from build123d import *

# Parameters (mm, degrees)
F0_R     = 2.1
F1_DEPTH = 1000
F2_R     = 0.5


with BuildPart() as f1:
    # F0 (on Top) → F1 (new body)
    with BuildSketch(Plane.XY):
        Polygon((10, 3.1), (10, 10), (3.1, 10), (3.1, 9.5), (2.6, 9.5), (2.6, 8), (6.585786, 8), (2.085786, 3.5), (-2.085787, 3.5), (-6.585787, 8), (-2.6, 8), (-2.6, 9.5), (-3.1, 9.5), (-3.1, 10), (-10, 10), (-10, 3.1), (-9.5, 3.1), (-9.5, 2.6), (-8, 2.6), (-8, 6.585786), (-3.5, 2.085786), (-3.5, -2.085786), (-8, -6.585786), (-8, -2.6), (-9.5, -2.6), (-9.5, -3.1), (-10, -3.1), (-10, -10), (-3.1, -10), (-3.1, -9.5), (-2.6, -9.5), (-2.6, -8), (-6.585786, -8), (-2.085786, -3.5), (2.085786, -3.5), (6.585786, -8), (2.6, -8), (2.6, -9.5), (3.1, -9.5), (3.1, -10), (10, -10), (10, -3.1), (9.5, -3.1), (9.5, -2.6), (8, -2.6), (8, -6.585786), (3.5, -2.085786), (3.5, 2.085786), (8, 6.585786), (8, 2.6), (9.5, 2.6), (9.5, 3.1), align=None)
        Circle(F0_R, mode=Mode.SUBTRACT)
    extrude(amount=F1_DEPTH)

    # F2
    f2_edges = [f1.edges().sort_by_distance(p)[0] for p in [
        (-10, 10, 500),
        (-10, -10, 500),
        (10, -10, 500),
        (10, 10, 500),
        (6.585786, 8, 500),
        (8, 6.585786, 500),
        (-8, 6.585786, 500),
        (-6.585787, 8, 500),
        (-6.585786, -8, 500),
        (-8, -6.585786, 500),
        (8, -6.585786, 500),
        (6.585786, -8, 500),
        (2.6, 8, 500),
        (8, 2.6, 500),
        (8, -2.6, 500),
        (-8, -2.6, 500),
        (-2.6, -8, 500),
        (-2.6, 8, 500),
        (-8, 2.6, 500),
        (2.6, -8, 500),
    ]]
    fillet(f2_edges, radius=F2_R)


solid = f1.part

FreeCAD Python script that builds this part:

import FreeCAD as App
import Part
import Sketcher


def edges_at(feature, points):
    """Names of the edges that pass closest to the given points."""
    edges = feature.Shape.Edges
    near = lambda p: min(range(len(edges)), key=lambda i: edges[i].distToShape(Part.Vertex(*p))[0])
    return sorted({f"Edge{near(p) + 1}" for p in points})

doc = App.newDocument("Part")
body = doc.addObject("PartDesign::Body", "Body")

sketch1 = body.newObject("Sketcher::SketchObject", "Sketch")
sketch1.AttachmentSupport = (doc.getObject("XY_Plane"), [""])
sketch1.MapMode = "FlatFace"
sketch1.addGeometry(Part.LineSegment(App.Vector(10, 3.1, 0), App.Vector(10, 10, 0)), False)
sketch1.addGeometry(Part.LineSegment(App.Vector(10, 10, 0), App.Vector(3.1, 10, 0)), False)
sketch1.addGeometry(Part.LineSegment(App.Vector(3.1, 10, 0), App.Vector(3.1, 9.5, 0)), False)
sketch1.addGeometry(Part.LineSegment(App.Vector(3.1, 9.5, 0), App.Vector(2.6, 9.5, 0)), False)
sketch1.addGeometry(Part.LineSegment(App.Vector(2.6, 9.5, 0), App.Vector(2.6, 8, 0)), False)
sketch1.addGeometry(Part.LineSegment(App.Vector(2.6, 8, 0), App.Vector(6.6, 8, 0)), False)
sketch1.addGeometry(Part.LineSegment(App.Vector(6.6, 8, 0), App.Vector(2.1, 3.5, 0)), False)
sketch1.addGeometry(Part.LineSegment(App.Vector(2.1, 3.5, 0), App.Vector(-2.1, 3.5, 0)), False)
sketch1.addGeometry(Part.LineSegment(App.Vector(-2.1, 3.5, 0), App.Vector(-6.6, 8, 0)), False)
sketch1.addGeometry(Part.LineSegment(App.Vector(-6.6, 8, 0), App.Vector(-2.6, 8, 0)), False)
sketch1.addGeometry(Part.LineSegment(App.Vector(-2.6, 8, 0), App.Vector(-2.6, 9.5, 0)), False)
sketch1.addGeometry(Part.LineSegment(App.Vector(-2.6, 9.5, 0), App.Vector(-3.1, 9.5, 0)), False)
sketch1.addGeometry(Part.LineSegment(App.Vector(-3.1, 9.5, 0), App.Vector(-3.1, 10, 0)), False)
sketch1.addGeometry(Part.LineSegment(App.Vector(-3.1, 10, 0), App.Vector(-10, 10, 0)), False)
sketch1.addGeometry(Part.LineSegment(App.Vector(-10, 10, 0), App.Vector(-10, 3.1, 0)), False)
sketch1.addGeometry(Part.LineSegment(App.Vector(-10, 3.1, 0), App.Vector(-9.5, 3.1, 0)), False)
sketch1.addGeometry(Part.LineSegment(App.Vector(-9.5, 3.1, 0), App.Vector(-9.5, 2.6, 0)), False)
sketch1.addGeometry(Part.LineSegment(App.Vector(-9.5, 2.6, 0), App.Vector(-8, 2.6, 0)), False)
sketch1.addGeometry(Part.LineSegment(App.Vector(-8, 2.6, 0), App.Vector(-8, 6.6, 0)), False)
sketch1.addGeometry(Part.LineSegment(App.Vector(-8, 6.6, 0), App.Vector(-3.5, 2.1, 0)), False)
sketch1.addGeometry(Part.LineSegment(App.Vector(-3.5, 2.1, 0), App.Vector(-3.5, -2.1, 0)), False)
sketch1.addGeometry(Part.LineSegment(App.Vector(-3.5, -2.1, 0), App.Vector(-8, -6.6, 0)), False)
sketch1.addGeometry(Part.LineSegment(App.Vector(-8, -6.6, 0), App.Vector(-8, -2.6, 0)), False)
sketch1.addGeometry(Part.LineSegment(App.Vector(-8, -2.6, 0), App.Vector(-9.5, -2.6, 0)), False)
sketch1.addGeometry(Part.LineSegment(App.Vector(-9.5, -2.6, 0), App.Vector(-9.5, -3.1, 0)), False)
sketch1.addGeometry(Part.LineSegment(App.Vector(-9.5, -3.1, 0), App.Vector(-10, -3.1, 0)), False)
sketch1.addGeometry(Part.LineSegment(App.Vector(-10, -3.1, 0), App.Vector(-10, -10, 0)), False)
sketch1.addGeometry(Part.LineSegment(App.Vector(-10, -10, 0), App.Vector(-3.1, -10, 0)), False)
sketch1.addGeometry(Part.LineSegment(App.Vector(-3.1, -10, 0), App.Vector(-3.1, -9.5, 0)), False)
sketch1.addGeometry(Part.LineSegment(App.Vector(-3.1, -9.5, 0), App.Vector(-2.6, -9.5, 0)), False)
sketch1.addGeometry(Part.LineSegment(App.Vector(-2.6, -9.5, 0), App.Vector(-2.6, -8, 0)), False)
sketch1.addGeometry(Part.LineSegment(App.Vector(-2.6, -8, 0), App.Vector(-6.6, -8, 0)), False)
sketch1.addGeometry(Part.LineSegment(App.Vector(-6.6, -8, 0), App.Vector(-2.1, -3.5, 0)), False)
sketch1.addGeometry(Part.LineSegment(App.Vector(-2.1, -3.5, 0), App.Vector(2.1, -3.5, 0)), False)
sketch1.addGeometry(Part.LineSegment(App.Vector(2.1, -3.5, 0), App.Vector(6.6, -8, 0)), False)
sketch1.addGeometry(Part.LineSegment(App.Vector(6.6, -8, 0), App.Vector(2.6, -8, 0)), False)
sketch1.addGeometry(Part.LineSegment(App.Vector(2.6, -8, 0), App.Vector(2.6, -9.5, 0)), False)
sketch1.addGeometry(Part.LineSegment(App.Vector(2.6, -9.5, 0), App.Vector(3.1, -9.5, 0)), False)
sketch1.addGeometry(Part.LineSegment(App.Vector(3.1, -9.5, 0), App.Vector(3.1, -10, 0)), False)
sketch1.addGeometry(Part.LineSegment(App.Vector(3.1, -10, 0), App.Vector(10, -10, 0)), False)
sketch1.addGeometry(Part.LineSegment(App.Vector(10, -10, 0), App.Vector(10, -3.1, 0)), False)
sketch1.addGeometry(Part.LineSegment(App.Vector(10, -3.1, 0), App.Vector(9.5, -3.1, 0)), False)
sketch1.addGeometry(Part.LineSegment(App.Vector(9.5, -3.1, 0), App.Vector(9.5, -2.6, 0)), False)
sketch1.addGeometry(Part.LineSegment(App.Vector(9.5, -2.6, 0), App.Vector(8, -2.6, 0)), False)
sketch1.addGeometry(Part.LineSegment(App.Vector(8, -2.6, 0), App.Vector(8, -6.6, 0)), False)
sketch1.addGeometry(Part.LineSegment(App.Vector(8, -6.6, 0), App.Vector(3.5, -2.1, 0)), False)
sketch1.addGeometry(Part.LineSegment(App.Vector(3.5, -2.1, 0), App.Vector(3.5, 2.1, 0)), False)
sketch1.addGeometry(Part.LineSegment(App.Vector(3.5, 2.1, 0), App.Vector(8, 6.6, 0)), False)
sketch1.addGeometry(Part.LineSegment(App.Vector(8, 6.6, 0), App.Vector(8, 2.6, 0)), False)
sketch1.addGeometry(Part.LineSegment(App.Vector(8, 2.6, 0), App.Vector(9.5, 2.6, 0)), False)
sketch1.addGeometry(Part.LineSegment(App.Vector(9.5, 2.6, 0), App.Vector(9.5, 3.1, 0)), False)
sketch1.addGeometry(Part.LineSegment(App.Vector(9.5, 3.1, 0), App.Vector(10, 3.1, 0)), False)
sketch1.addGeometry(Part.Circle(App.Vector(0, 0, 0), App.Vector(0, 0, 1), 2.1), False)
sketch1.addConstraint(Sketcher.Constraint("Coincident", 0, 2, 1, 1))
sketch1.addConstraint(Sketcher.Constraint("Coincident", 1, 2, 2, 1))
sketch1.addConstraint(Sketcher.Constraint("Coincident", 2, 2, 3, 1))
sketch1.addConstraint(Sketcher.Constraint("Coincident", 3, 2, 4, 1))
sketch1.addConstraint(Sketcher.Constraint("Coincident", 4, 2, 5, 1))
sketch1.addConstraint(Sketcher.Constraint("Coincident", 5, 2, 6, 1))
sketch1.addConstraint(Sketcher.Constraint("Coincident", 6, 2, 7, 1))
sketch1.addConstraint(Sketcher.Constraint("Coincident", 7, 2, 8, 1))
sketch1.addConstraint(Sketcher.Constraint("Coincident", 8, 2, 9, 1))
sketch1.addConstraint(Sketcher.Constraint("Coincident", 9, 2, 10, 1))
sketch1.addConstraint(Sketcher.Constraint("Coincident", 10, 2, 11, 1))
sketch1.addConstraint(Sketcher.Constraint("Coincident", 11, 2, 12, 1))
sketch1.addConstraint(Sketcher.Constraint("Coincident", 12, 2, 13, 1))
sketch1.addConstraint(Sketcher.Constraint("Coincident", 13, 2, 14, 1))
sketch1.addConstraint(Sketcher.Constraint("Coincident", 14, 2, 15, 1))
sketch1.addConstraint(Sketcher.Constraint("Coincident", 15, 2, 16, 1))
sketch1.addConstraint(Sketcher.Constraint("Coincident", 16, 2, 17, 1))
sketch1.addConstraint(Sketcher.Constraint("Coincident", 17, 2, 18, 1))
sketch1.addConstraint(Sketcher.Constraint("Coincident", 18, 2, 19, 1))
sketch1.addConstraint(Sketcher.Constraint("Coincident", 19, 2, 20, 1))
sketch1.addConstraint(Sketcher.Constraint("Coincident", 20, 2, 21, 1))
sketch1.addConstraint(Sketcher.Constraint("Coincident", 21, 2, 22, 1))
sketch1.addConstraint(Sketcher.Constraint("Coincident", 22, 2, 23, 1))
sketch1.addConstraint(Sketcher.Constraint("Coincident", 23, 2, 24, 1))
sketch1.addConstraint(Sketcher.Constraint("Coincident", 24, 2, 25, 1))
sketch1.addConstraint(Sketcher.Constraint("Coincident", 25, 2, 26, 1))
sketch1.addConstraint(Sketcher.Constraint("Coincident", 26, 2, 27, 1))
sketch1.addConstraint(Sketcher.Constraint("Coincident", 27, 2, 28, 1))
sketch1.addConstraint(Sketcher.Constraint("Coincident", 28, 2, 29, 1))
sketch1.addConstraint(Sketcher.Constraint("Coincident", 29, 2, 30, 1))
sketch1.addConstraint(Sketcher.Constraint("Coincident", 30, 2, 31, 1))
sketch1.addConstraint(Sketcher.Constraint("Coincident", 31, 2, 32, 1))
sketch1.addConstraint(Sketcher.Constraint("Coincident", 32, 2, 33, 1))
sketch1.addConstraint(Sketcher.Constraint("Coincident", 33, 2, 34, 1))
sketch1.addConstraint(Sketcher.Constraint("Coincident", 34, 2, 35, 1))
sketch1.addConstraint(Sketcher.Constraint("Coincident", 35, 2, 36, 1))
sketch1.addConstraint(Sketcher.Constraint("Coincident", 36, 2, 37, 1))
sketch1.addConstraint(Sketcher.Constraint("Coincident", 37, 2, 38, 1))
sketch1.addConstraint(Sketcher.Constraint("Coincident", 38, 2, 39, 1))
sketch1.addConstraint(Sketcher.Constraint("Coincident", 39, 2, 40, 1))
sketch1.addConstraint(Sketcher.Constraint("Coincident", 40, 2, 41, 1))
sketch1.addConstraint(Sketcher.Constraint("Coincident", 41, 2, 42, 1))
sketch1.addConstraint(Sketcher.Constraint("Coincident", 42, 2, 43, 1))
sketch1.addConstraint(Sketcher.Constraint("Coincident", 43, 2, 44, 1))
sketch1.addConstraint(Sketcher.Constraint("Coincident", 44, 2, 45, 1))
sketch1.addConstraint(Sketcher.Constraint("Coincident", 45, 2, 46, 1))
sketch1.addConstraint(Sketcher.Constraint("Coincident", 46, 2, 47, 1))
sketch1.addConstraint(Sketcher.Constraint("Coincident", 47, 2, 48, 1))
sketch1.addConstraint(Sketcher.Constraint("Coincident", 48, 2, 49, 1))
sketch1.addConstraint(Sketcher.Constraint("Coincident", 49, 2, 50, 1))
sketch1.addConstraint(Sketcher.Constraint("Coincident", 50, 2, 51, 1))
sketch1.addConstraint(Sketcher.Constraint("Coincident", 51, 2, 0, 1))
sketch1.addConstraint(Sketcher.Constraint("Vertical", 0))
sketch1.addConstraint(Sketcher.Constraint("Horizontal", 1))
sketch1.addConstraint(Sketcher.Constraint("Vertical", 2))
sketch1.addConstraint(Sketcher.Constraint("Horizontal", 3))
sketch1.addConstraint(Sketcher.Constraint("Vertical", 4))
sketch1.addConstraint(Sketcher.Constraint("Horizontal", 5))
sketch1.addConstraint(Sketcher.Constraint("Horizontal", 7))
sketch1.addConstraint(Sketcher.Constraint("Horizontal", 9))
sketch1.addConstraint(Sketcher.Constraint("Vertical", 10))
sketch1.addConstraint(Sketcher.Constraint("Horizontal", 11))
sketch1.addConstraint(Sketcher.Constraint("Vertical", 12))
sketch1.addConstraint(Sketcher.Constraint("Horizontal", 13))
sketch1.addConstraint(Sketcher.Constraint("Vertical", 14))
sketch1.addConstraint(Sketcher.Constraint("Horizontal", 15))
sketch1.addConstraint(Sketcher.Constraint("Vertical", 16))
sketch1.addConstraint(Sketcher.Constraint("Horizontal", 17))
sketch1.addConstraint(Sketcher.Constraint("Vertical", 18))
sketch1.addConstraint(Sketcher.Constraint("Vertical", 20))
sketch1.addConstraint(Sketcher.Constraint("Vertical", 22))
sketch1.addConstraint(Sketcher.Constraint("Horizontal", 23))
sketch1.addConstraint(Sketcher.Constraint("Vertical", 24))
sketch1.addConstraint(Sketcher.Constraint("Horizontal", 25))
sketch1.addConstraint(Sketcher.Constraint("Vertical", 26))
sketch1.addConstraint(Sketcher.Constraint("Horizontal", 27))
sketch1.addConstraint(Sketcher.Constraint("Vertical", 28))
sketch1.addConstraint(Sketcher.Constraint("Horizontal", 29))
sketch1.addConstraint(Sketcher.Constraint("Vertical", 30))
sketch1.addConstraint(Sketcher.Constraint("Horizontal", 31))
sketch1.addConstraint(Sketcher.Constraint("Horizontal", 33))
sketch1.addConstraint(Sketcher.Constraint("Horizontal", 35))
sketch1.addConstraint(Sketcher.Constraint("Vertical", 36))
sketch1.addConstraint(Sketcher.Constraint("Horizontal", 37))
sketch1.addConstraint(Sketcher.Constraint("Vertical", 38))
sketch1.addConstraint(Sketcher.Constraint("Horizontal", 39))
sketch1.addConstraint(Sketcher.Constraint("Vertical", 40))
sketch1.addConstraint(Sketcher.Constraint("Horizontal", 41))
sketch1.addConstraint(Sketcher.Constraint("Vertical", 42))
sketch1.addConstraint(Sketcher.Constraint("Horizontal", 43))
sketch1.addConstraint(Sketcher.Constraint("Vertical", 44))
sketch1.addConstraint(Sketcher.Constraint("Vertical", 46))
sketch1.addConstraint(Sketcher.Constraint("Vertical", 48))
sketch1.addConstraint(Sketcher.Constraint("Horizontal", 49))
sketch1.addConstraint(Sketcher.Constraint("Vertical", 50))
sketch1.addConstraint(Sketcher.Constraint("Horizontal", 51))
sketch1.addConstraint(Sketcher.Constraint("Coincident", 52, 3, -1, 1))
sketch1.addConstraint(Sketcher.Constraint("Symmetric", 0, 2, 26, 2, -1, 1))
sketch1.addConstraint(Sketcher.Constraint("Symmetric", 2, 2, 28, 2, -1, 1))
sketch1.addConstraint(Sketcher.Constraint("Symmetric", 4, 2, 30, 2, -1, 1))
sketch1.addConstraint(Sketcher.Constraint("Symmetric", 6, 2, 32, 2, -1, 1))
sketch1.addConstraint(Sketcher.Constraint("Symmetric", 8, 2, 34, 2, -1, 1))
sketch1.addConstraint(Sketcher.Constraint("Symmetric", 10, 2, 36, 2, -1, 1))
sketch1.addConstraint(Sketcher.Constraint("Symmetric", 12, 2, 38, 2, -1, 1))
sketch1.addConstraint(Sketcher.Constraint("Symmetric", 14, 2, 40, 2, -1, 1))
sketch1.addConstraint(Sketcher.Constraint("Symmetric", 16, 2, 42, 2, -1, 1))
sketch1.addConstraint(Sketcher.Constraint("Symmetric", 18, 2, 44, 2, -1, 1))
sketch1.addConstraint(Sketcher.Constraint("Symmetric", 19, 2, 45, 2, -1, 1))
sketch1.addConstraint(Sketcher.Constraint("Symmetric", 21, 2, 47, 2, -1, 1))
sketch1.addConstraint(Sketcher.Constraint("Symmetric", 23, 2, 49, 2, -1, 1))
sketch1.addConstraint(Sketcher.Constraint("Symmetric", 5, 2, 8, 2, -2))
sketch1.addConstraint(Sketcher.Constraint("Symmetric", 3, 2, 10, 2, -2))
sketch1.addConstraint(Sketcher.Constraint("Symmetric", 1, 2, 12, 2, -2))
sketch1.addConstraint(Sketcher.Constraint("Symmetric", 25, 2, 40, 2, -2))
sketch1.addConstraint(Sketcher.Constraint("Symmetric", 23, 2, 42, 2, -2))
sketch1.addConstraint(Sketcher.Constraint("Symmetric", 21, 2, 44, 2, -2))
sketch1.addConstraint(Sketcher.Constraint("Perpendicular", 6, 8))
sketch1.addConstraint(Sketcher.Constraint("Parallel", 8, 19))
sketch1.addConstraint(Sketcher.Constraint("Perpendicular", 19, 21))
sketch1.addConstraint(Sketcher.Constraint("Parallel", 21, 32))
sketch1.addConstraint(Sketcher.Constraint("Perpendicular", 32, 34))
sketch1.addConstraint(Sketcher.Constraint("Perpendicular", 45, 47))
sketch1.addConstraint(Sketcher.Constraint("Horizontal", 20, 2, 45, 2))
sketch1.addConstraint(Sketcher.Constraint("Horizontal", 15, 2, 50, 2))
sketch1.addConstraint(Sketcher.Constraint("Equal", 11, 15))
sketch1.addConstraint(Sketcher.Constraint("Equal", 39, 0))
sketch1.addConstraint(Sketcher.Constraint("Equal", 51, 2))
sketch1.addConstraint(Sketcher.Constraint("Equal", 49, 4))
sketch1.addConstraint(Sketcher.Constraint("Equal", 12, 16))
sketch1.addConstraint(Sketcher.Constraint("Equal", 35, 18))
sketch1.addConstraint(Sketcher.Constraint("Equal", 33, 20))
sketch1.addConstraint(Sketcher.Constraint("Equal", 8, 19))
sketch1.addConstraint(Sketcher.Constraint("Diameter", 52, 4.2))
sketch1.addConstraint(Sketcher.Constraint("DistanceX", 1, 2, 1, 1, 6.9))
sketch1.addConstraint(Sketcher.Constraint("DistanceX", 3, 2, 3, 1, 0.5))
sketch1.addConstraint(Sketcher.Constraint("DistanceX", 17, 1, 17, 2, 1.5))
sketch1.addConstraint(Sketcher.Constraint("DistanceX", -1, 1, 0, 2, 10.0))
sketch1.addConstraint(Sketcher.Constraint("DistanceY", 6, 2, 3, 2, 6.0))
sketch1.addConstraint(Sketcher.Constraint("DistanceX", 5, 1, 5, 2, 3.985786))
pad1 = body.newObject("PartDesign::Pad", "Pad")
pad1.Profile = sketch1
pad1.Length = 1000
doc.recompute()

fillet = body.newObject("PartDesign::Fillet", "Fillet")
fillet.Base = (pad1, edges_at(pad1, [
    (-10, 10, 500),
    (-10, -10, 500),
    (10, -10, 500),
    (10, 10, 500),
    (6.586, 8, 500),
    (8, 6.586, 500),
    (-8, 6.586, 500),
    (-6.586, 8, 500),
    (-6.586, -8, 500),
    (-8, -6.586, 500),
    (8, -6.586, 500),
    (6.586, -8, 500),
    (2.6, 8, 500),
    (8, 2.6, 500),
    (8, -2.6, 500),
    (-8, -2.6, 500),
    (-2.6, -8, 500),
    (-2.6, 8, 500),
    (-8, 2.6, 500),
    (2.6, -8, 500),
]))
fillet.Radius = 0.5

doc.recompute()
